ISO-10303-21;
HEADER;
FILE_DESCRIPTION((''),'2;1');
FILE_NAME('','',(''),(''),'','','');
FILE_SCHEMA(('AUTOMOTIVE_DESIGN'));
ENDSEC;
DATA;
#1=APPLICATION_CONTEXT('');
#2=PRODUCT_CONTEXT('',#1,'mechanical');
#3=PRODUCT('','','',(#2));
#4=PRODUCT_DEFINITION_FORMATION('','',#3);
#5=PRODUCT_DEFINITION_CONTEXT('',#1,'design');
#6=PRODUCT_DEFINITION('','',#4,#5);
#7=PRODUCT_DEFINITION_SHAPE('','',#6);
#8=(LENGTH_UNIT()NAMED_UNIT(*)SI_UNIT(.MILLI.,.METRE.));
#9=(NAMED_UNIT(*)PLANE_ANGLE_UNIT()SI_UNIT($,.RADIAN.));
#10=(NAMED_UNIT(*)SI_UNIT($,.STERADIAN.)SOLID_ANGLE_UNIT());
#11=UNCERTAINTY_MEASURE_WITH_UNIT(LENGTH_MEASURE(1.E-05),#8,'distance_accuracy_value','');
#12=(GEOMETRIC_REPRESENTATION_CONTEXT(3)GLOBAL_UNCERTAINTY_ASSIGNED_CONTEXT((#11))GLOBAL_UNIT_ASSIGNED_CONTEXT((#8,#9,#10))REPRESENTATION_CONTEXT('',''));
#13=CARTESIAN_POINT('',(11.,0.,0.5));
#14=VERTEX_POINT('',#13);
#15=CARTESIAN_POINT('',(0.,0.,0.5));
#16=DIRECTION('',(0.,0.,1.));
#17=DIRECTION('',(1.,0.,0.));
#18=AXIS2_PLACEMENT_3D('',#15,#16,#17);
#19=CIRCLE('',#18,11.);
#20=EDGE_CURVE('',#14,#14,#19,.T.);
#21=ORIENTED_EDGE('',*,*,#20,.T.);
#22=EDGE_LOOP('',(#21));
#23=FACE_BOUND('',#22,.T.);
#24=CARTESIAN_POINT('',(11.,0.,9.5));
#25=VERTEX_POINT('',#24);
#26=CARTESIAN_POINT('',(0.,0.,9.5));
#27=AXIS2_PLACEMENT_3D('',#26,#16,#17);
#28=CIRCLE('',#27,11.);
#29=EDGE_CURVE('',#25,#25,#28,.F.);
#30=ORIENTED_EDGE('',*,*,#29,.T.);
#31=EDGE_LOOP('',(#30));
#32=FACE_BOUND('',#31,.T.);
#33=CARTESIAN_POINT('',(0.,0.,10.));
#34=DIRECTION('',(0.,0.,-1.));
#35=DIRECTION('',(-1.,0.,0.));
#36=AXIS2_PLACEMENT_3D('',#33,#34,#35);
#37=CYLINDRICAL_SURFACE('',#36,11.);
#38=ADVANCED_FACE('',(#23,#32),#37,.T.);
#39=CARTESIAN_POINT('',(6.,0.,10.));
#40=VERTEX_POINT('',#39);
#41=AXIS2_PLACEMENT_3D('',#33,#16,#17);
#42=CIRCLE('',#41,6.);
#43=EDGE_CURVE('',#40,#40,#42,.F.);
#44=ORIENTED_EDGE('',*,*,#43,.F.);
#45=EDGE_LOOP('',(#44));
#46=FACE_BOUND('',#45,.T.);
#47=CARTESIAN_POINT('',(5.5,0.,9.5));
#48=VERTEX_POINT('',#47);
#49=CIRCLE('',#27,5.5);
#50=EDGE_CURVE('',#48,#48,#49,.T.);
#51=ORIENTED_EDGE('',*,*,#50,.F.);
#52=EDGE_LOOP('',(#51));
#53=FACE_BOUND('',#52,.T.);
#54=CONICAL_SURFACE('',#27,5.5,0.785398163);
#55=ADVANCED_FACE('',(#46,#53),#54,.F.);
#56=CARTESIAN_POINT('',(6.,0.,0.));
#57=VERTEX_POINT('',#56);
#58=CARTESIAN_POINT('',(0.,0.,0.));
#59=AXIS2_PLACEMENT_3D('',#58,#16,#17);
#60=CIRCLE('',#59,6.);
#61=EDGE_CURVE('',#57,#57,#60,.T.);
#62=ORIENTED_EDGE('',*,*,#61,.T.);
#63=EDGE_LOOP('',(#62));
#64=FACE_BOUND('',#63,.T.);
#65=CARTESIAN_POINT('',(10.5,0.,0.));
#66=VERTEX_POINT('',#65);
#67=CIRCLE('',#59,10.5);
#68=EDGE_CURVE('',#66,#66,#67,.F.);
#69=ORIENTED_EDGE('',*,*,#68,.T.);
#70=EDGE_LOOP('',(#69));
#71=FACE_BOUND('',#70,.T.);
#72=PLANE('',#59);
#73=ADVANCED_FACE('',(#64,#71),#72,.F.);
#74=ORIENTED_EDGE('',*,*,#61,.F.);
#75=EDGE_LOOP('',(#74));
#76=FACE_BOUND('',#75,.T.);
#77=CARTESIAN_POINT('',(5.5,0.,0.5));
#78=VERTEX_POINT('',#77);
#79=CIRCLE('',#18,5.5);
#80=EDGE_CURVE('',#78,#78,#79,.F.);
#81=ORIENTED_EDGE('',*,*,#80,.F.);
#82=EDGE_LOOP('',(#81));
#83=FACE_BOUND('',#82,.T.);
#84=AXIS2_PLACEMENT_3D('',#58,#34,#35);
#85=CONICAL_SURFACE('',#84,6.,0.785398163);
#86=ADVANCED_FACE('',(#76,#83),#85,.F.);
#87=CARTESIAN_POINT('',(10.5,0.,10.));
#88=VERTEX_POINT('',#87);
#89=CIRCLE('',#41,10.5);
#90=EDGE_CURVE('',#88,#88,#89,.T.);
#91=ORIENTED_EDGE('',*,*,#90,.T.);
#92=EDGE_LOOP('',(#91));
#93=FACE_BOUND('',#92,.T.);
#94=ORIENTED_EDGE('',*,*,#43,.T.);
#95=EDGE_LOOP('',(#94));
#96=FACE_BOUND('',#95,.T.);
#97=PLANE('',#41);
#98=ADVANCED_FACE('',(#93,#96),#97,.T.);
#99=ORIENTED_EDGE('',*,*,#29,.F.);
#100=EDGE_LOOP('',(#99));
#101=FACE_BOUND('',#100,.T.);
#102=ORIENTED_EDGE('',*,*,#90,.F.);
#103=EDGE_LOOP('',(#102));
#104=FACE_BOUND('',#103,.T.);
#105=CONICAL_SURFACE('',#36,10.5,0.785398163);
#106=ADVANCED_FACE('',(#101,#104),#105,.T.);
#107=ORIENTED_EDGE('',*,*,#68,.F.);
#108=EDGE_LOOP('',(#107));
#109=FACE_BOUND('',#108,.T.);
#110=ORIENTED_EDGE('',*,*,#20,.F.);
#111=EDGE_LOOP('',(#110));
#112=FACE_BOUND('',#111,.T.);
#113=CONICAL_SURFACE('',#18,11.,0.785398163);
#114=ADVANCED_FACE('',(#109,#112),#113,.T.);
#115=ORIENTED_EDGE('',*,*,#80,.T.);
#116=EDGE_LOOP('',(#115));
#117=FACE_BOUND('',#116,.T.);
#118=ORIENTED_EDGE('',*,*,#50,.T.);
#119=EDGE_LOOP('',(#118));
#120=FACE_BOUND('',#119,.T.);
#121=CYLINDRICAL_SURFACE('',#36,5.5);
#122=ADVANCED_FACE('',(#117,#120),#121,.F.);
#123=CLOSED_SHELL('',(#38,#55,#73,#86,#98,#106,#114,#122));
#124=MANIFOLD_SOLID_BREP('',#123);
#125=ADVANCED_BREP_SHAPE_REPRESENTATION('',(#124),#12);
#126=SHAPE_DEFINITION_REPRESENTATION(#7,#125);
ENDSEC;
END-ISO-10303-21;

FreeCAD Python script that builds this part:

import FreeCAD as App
import Part
import Sketcher
Q = App.Units.Quantity


def edges_at(feature, points):
    """Names of the edges that pass closest to the given points."""
    edges = feature.Shape.Edges
    near = lambda p: min(range(len(edges)), key=lambda i: edges[i].distToShape(Part.Vertex(*p))[0])
    return sorted({f"Edge{near(p) + 1}" for p in points})

doc = App.newDocument("Part")
body = doc.addObject("PartDesign::Body", "Body")

# Sketch on XY plane
sketch1 = body.newObject("Sketcher::SketchObject", "Sketch")
sketch1.AttachmentSupport = (doc.getObject("XY_Plane"), [""])
sketch1.MapMode = "FlatFace"
sketch1.addGeometry([
    Part.Circle(App.Vector(0, 0, 0), App.Vector(0, 0, 1), 11),
    Part.Circle(App.Vector(0, 0, 0), App.Vector(0, 0, 1), 6),
], False)
sketch1.addConstraint([
    Sketcher.Constraint("Coincident", 0, 3, -1, 1),
    Sketcher.Constraint("Coincident", 1, 3, -1, 1),
    Sketcher.Constraint("Diameter", 0, Q("22 mm")),
    Sketcher.Constraint("Diameter", 1, Q("11 mm")),
])
pad1 = body.newObject("PartDesign::Pad", "Pad")
pad1.Profile = sketch1
pad1.Length = 10
doc.recompute()

chamfer = body.newObject("PartDesign::Chamfer", "Chamfer")
chamfer.Base = (pad1, edges_at(pad1, [
    (-11, 0, 0),
    (-11, 0, 10),
    (-5.5, 0, 0),
    (-5.5, 0, 10),
]))
chamfer.Size = 0.5

doc.recompute()
